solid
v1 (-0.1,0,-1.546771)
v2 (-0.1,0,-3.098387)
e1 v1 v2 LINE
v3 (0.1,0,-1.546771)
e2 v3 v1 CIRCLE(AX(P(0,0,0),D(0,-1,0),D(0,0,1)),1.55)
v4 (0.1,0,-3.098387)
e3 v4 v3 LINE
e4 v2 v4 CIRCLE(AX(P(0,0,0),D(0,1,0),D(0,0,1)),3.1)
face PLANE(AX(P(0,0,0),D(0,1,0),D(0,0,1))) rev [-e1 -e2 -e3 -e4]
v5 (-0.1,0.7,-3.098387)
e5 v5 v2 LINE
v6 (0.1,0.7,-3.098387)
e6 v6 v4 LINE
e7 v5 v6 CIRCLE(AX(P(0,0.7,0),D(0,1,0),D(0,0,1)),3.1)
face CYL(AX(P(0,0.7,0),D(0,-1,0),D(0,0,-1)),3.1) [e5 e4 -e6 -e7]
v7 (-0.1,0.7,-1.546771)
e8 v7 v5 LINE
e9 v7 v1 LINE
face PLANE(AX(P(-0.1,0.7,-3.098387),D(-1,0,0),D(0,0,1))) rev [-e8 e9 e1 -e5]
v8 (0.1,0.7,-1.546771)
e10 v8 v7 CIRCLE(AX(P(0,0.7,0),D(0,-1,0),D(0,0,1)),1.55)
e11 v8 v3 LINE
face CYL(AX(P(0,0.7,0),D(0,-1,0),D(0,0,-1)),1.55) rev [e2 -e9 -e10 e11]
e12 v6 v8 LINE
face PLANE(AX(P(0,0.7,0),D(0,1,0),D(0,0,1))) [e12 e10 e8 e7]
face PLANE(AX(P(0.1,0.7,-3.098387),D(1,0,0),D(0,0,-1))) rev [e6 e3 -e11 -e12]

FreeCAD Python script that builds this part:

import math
import FreeCAD as App
import Part
import Sketcher
from FreeCAD import Vector
Q = App.Units.Quantity

doc = App.newDocument("Part")
body = doc.addObject("PartDesign::Body", "Body")

sketch1 = doc.addObject("Sketcher::SketchObject", "Sketch")
body.addObject(sketch1)
sketch1.AttachmentSupport = (doc.XZ_Plane, [""])
sketch1.MapMode = "FlatFace"
sketch1.addGeometry(Part.LineSegment(Vector(-0.1, -1.55, 0), Vector(-0.1, -3.1, 0)), False)
sketch1.addGeometry(Part.ArcOfCircle(Part.Circle(Vector(0, 0, 0), Vector(0, 0, 1), 3.1), math.radians(-88), math.radians(268)), False)
sketch1.addGeometry(Part.LineSegment(Vector(0.1, -3.1, 0), Vector(0.1, -1.55, 0)), False)
sketch1.addGeometry(Part.ArcOfCircle(Part.Circle(Vector(0, 0, 0), Vector(0, 0, 1), 1.55), math.radians(-86), math.radians(266)), False)
sketch1.addConstraint(Sketcher.Constraint("Coincident", 0, 2, 1, 2))
sketch1.addConstraint(Sketcher.Constraint("Coincident", 1, 1, 2, 1))
sketch1.addConstraint(Sketcher.Constraint("Coincident", 2, 2, 3, 1))
sketch1.addConstraint(Sketcher.Constraint("Coincident", 3, 2, 0, 1))
sketch1.addConstraint(Sketcher.Constraint("Vertical", 0))
sketch1.addConstraint(Sketcher.Constraint("Vertical", 2))
sketch1.addConstraint(Sketcher.Constraint("Coincident", 1, 3, -1, 1))
sketch1.addConstraint(Sketcher.Constraint("Coincident", 3, 3, -1, 1))
sketch1.addConstraint(Sketcher.Constraint("Horizontal", 0, 2, 1, 1))
sketch1.addConstraint(Sketcher.Constraint("Radius", 1, Q("3.1 mm")))
sketch1.addConstraint(Sketcher.Constraint("Radius", 3, Q("1.55 mm")))
sketch1.addConstraint(Sketcher.Constraint("DistanceX", 0, 2, -1, 1, Q("0.1 mm")))
pad1 = doc.addObject("PartDesign::Pad", "Pad")
body.addObject(pad1)
pad1.Profile = sketch1
pad1.Length = 0.7
pad1.Reversed = True

doc.recompute()
